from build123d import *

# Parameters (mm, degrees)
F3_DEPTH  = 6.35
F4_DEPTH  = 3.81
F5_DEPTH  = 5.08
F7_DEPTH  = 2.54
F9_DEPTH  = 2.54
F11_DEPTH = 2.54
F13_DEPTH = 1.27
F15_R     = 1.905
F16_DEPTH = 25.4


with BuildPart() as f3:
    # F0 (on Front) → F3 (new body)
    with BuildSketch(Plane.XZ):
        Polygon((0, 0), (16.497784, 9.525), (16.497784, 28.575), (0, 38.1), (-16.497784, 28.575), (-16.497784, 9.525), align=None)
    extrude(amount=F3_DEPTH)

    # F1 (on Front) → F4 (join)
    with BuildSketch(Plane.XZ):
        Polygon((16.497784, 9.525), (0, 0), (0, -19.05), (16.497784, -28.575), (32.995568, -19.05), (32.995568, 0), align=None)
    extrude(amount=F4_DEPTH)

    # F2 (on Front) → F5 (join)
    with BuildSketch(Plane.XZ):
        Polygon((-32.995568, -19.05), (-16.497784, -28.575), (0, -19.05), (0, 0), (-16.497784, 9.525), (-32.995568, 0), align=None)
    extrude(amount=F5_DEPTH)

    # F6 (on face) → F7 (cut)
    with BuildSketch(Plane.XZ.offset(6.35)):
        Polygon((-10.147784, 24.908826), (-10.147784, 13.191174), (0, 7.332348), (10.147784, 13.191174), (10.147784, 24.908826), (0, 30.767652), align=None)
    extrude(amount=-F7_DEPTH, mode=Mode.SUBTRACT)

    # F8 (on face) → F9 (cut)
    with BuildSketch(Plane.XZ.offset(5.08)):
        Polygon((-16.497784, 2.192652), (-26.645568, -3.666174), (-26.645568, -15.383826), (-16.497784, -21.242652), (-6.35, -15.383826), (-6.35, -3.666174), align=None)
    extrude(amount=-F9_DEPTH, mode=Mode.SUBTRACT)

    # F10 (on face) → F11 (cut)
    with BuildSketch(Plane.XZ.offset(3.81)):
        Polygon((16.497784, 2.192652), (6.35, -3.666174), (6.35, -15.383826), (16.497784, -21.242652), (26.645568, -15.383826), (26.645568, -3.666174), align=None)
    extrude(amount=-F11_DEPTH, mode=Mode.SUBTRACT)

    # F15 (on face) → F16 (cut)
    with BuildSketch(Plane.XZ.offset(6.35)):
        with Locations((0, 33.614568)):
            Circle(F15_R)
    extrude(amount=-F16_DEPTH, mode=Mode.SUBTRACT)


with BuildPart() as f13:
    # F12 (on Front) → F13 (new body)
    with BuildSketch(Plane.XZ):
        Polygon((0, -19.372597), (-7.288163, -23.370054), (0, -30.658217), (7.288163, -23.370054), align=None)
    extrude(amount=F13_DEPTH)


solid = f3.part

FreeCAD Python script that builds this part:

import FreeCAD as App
import Part
import Sketcher
from FreeCAD import Vector
Q = App.Units.Quantity


def add_polygon(sketch, points):
    """Adds a closed chain of lines whose ends are joined by coincident constraints."""
    first, n = sketch.GeometryCount, len(points)
    for a, b in zip(points, points[1:] + points[:1]):
        sketch.addGeometry(Part.LineSegment(App.Vector(*a, 0), App.Vector(*b, 0)), False)
    for i in range(n):
        sketch.addConstraint(Sketcher.Constraint("Coincident", first + i, 2, first + (i + 1) % n, 1))

doc = App.newDocument("Part")
params = doc.addObject("Spreadsheet::Sheet", "Params")
for row, (alias, value) in enumerate([
    ("sketch1_height", "0.75 in"),
    ("pad1_length", "0.25 in"),
    ("sketch2_height", "0.75 in"),
    ("pad2_length", "0.15 in"),
    ("sketch3_height", "0.75 in"),
    ("pad3_length", "0.2 in"),
    ("pocket1_length", "0.1 in"),
    ("pocket2_length", "0.1 in"),
    ("pocket3_length", "0.1 in"),
    ("sketch7_diameter", "0.15 in"),
    ("pocket4_length", "1 in"),
    ("pad4_length", "0.05 in"),
], start=1):
    params.set(f"A{row}", alias)
    params.set(f"B{row}", "=" + value)
    params.setAlias(f"B{row}", alias)

body = doc.addObject("PartDesign::Body", "Body")

# Sketch on XZ plane
sketch1 = body.newObject("Sketcher::SketchObject", "Sketch")
sketch1.AttachmentSupport = (doc.getObject("XZ_Plane"), [""])
sketch1.MapMode = "FlatFace"
add_polygon(sketch1, [(0, 0), (16, 10), (16, 29), (0, 38), (-16, 29), (-16, 10)])  # lines 0-5
sketch1.addConstraint(Sketcher.Constraint("Vertical", 1))
sketch1.addConstraint(Sketcher.Constraint("Vertical", 4))
sketch1.addConstraint(Sketcher.Constraint("Coincident", 5, 2, -1, 1))
sketch1.addConstraint(Sketcher.Constraint("Symmetric", 1, 2, 3, 2, -2))
sketch1.addConstraint(Sketcher.Constraint("PointOnObject", 2, 2, -2))
sketch1.addConstraint(Sketcher.Constraint("Parallel", 0, 3))
sketch1.addConstraint(Sketcher.Constraint("Parallel", 2, 5))
sketch1.addConstraint(Sketcher.Constraint("Angle", 0, Q("30 deg")))
sketch1.addConstraint(Sketcher.Constraint("DistanceY", 1, 1, 1, 2, Q("0.75 in")))
sketch1.addConstraint(Sketcher.Constraint("DistanceY", -1, 1, 2, 2, Q("1.5 in")))
sketch1.setExpression("Constraints[14]", "Params.sketch1_height")
pad1 = body.newObject("PartDesign::Pad", "Pad")
pad1.Profile = sketch1
pad1.setExpression("Length", "Params.pad1_length")

# Sketch on XZ plane
sketch2 = body.newObject("Sketcher::SketchObject", "Sketch001")
sketch2.AttachmentSupport = (doc.getObject("XZ_Plane"), [""])
sketch2.MapMode = "FlatFace"
add_polygon(sketch2, [(16, 10), (0, 0), (0, -19), (16, -29), (33, -19), (33, 0)])  # lines 0-5
sketch2.addConstraint(Sketcher.Constraint("Vertical", 1))
sketch2.addConstraint(Sketcher.Constraint("Vertical", 4))
sketch2.addConstraint(Sketcher.Constraint("Coincident", 0, 2, -1, 1))
sketch2.addConstraint(Sketcher.Constraint("PointOnObject", 4, 2, -1))
sketch2.addConstraint(Sketcher.Constraint("Parallel", 0, 3))
sketch2.addConstraint(Sketcher.Constraint("Parallel", 2, 5))
sketch2.addConstraint(Sketcher.Constraint("Horizontal", 1, 2, 3, 2))
sketch2.addConstraint(Sketcher.Constraint("Vertical", 2, 2, 5, 2))
sketch2.addConstraint(Sketcher.Constraint("Angle", 0, Q("-150 deg")))
sketch2.addConstraint(Sketcher.Constraint("DistanceY", 1, 2, 1, 1, Q("0.75 in")))
sketch2.addConstraint(Sketcher.Constraint("DistanceY", 2, 2, 5, 2, Q("1.5 in")))
sketch2.setExpression("Constraints[15]", "Params.sketch2_height")
pad2 = body.newObject("PartDesign::Pad", "Pad001")
pad2.Profile = sketch2
pad2.setExpression("Length", "Params.pad2_length")

# Sketch on XZ plane
sketch3 = body.newObject("Sketcher::SketchObject", "Sketch002")
sketch3.AttachmentSupport = (doc.getObject("XZ_Plane"), [""])
sketch3.MapMode = "FlatFace"
add_polygon(sketch3, [(-33, -19), (-16, -29), (0, -19), (0, 0), (-16, 10), (-33, 0)])  # lines 0-5
sketch3.addConstraint(Sketcher.Constraint("Vertical", 2))
sketch3.addConstraint(Sketcher.Constraint("Vertical", 5))
sketch3.addConstraint(Sketcher.Constraint("Coincident", 2, 2, -1, 1))
sketch3.addConstraint(Sketcher.Constraint("PointOnObject", 4, 2, -1))
sketch3.addConstraint(Sketcher.Constraint("Parallel", 0, 3))
sketch3.addConstraint(Sketcher.Constraint("Parallel", 1, 4))
sketch3.addConstraint(Sketcher.Constraint("Horizontal", 1, 2, 5, 2))
sketch3.addConstraint(Sketcher.Constraint("Vertical", 0, 2, 3, 2))
sketch3.addConstraint(Sketcher.Constraint("Angle", 0, Q("-30 deg")))
sketch3.addConstraint(Sketcher.Constraint("DistanceY", 2, 1, 2, 2, Q("0.75 in")))
sketch3.addConstraint(Sketcher.Constraint("DistanceY", 0, 2, 3, 2, Q("1.5 in")))
sketch3.setExpression("Constraints[15]", "Params.sketch3_height")
pad3 = body.newObject("PartDesign::Pad", "Pad002")
pad3.Profile = sketch3
pad3.setExpression("Length", "Params.pad3_length")

# Sketch on XZ plane
sketch4 = body.newObject("Sketcher::SketchObject", "Sketch003")
sketch4.AttachmentSupport = (doc.getObject("XZ_Plane"), [""])
sketch4.MapMode = "FlatFace"
sketch4.AttachmentOffset = App.Placement(Vector(0, 0, 0.25 * 25.4), App.Rotation())
add_polygon(sketch4, [(-10, 25), (-10, 13), (0, 7), (10, 13), (10, 25), (0, 31)])  # lines 0-5
sketch4.addConstraint(Sketcher.Constraint("Vertical", 0))
sketch4.addConstraint(Sketcher.Constraint("Vertical", 3))
sketch4.addConstraint(Sketcher.Constraint("Symmetric", 0, 2, 2, 2, -2))
sketch4.addConstraint(Sketcher.Constraint("PointOnObject", 1, 2, -2))
sketch4.addConstraint(Sketcher.Constraint("PointOnObject", 4, 2, -2))
sketch4.addConstraint(Sketcher.Constraint("Parallel", 1, 4))
sketch4.addConstraint(Sketcher.Constraint("Parallel", 2, 5))
sketch4.addConstraint(Sketcher.Constraint("Angle", 1, Q("-30.000001 deg")))
sketch4.addConstraint(Sketcher.Constraint("Distance", 1, 11.717652))
sketch4.addConstraint(Sketcher.Constraint("DistanceY", 0, 2, 0, 1, 11.717652))
sketch4.addConstraint(Sketcher.Constraint("DistanceY", -1, 1, 4, 2, 30.767652))
pocket1 = body.newObject("PartDesign::Pocket", "Pocket")
pocket1.Profile = sketch4
pocket1.setExpression("Length", "Params.pocket1_length")

# Sketch on XZ plane
sketch5 = body.newObject("Sketcher::SketchObject", "Sketch004")
sketch5.AttachmentSupport = (doc.getObject("XZ_Plane"), [""])
sketch5.MapMode = "FlatFace"
sketch5.AttachmentOffset = App.Placement(Vector(0, 0, 0.2 * 25.4), App.Rotation())
add_polygon(sketch5, [(-16, 2), (-27, -4), (-27, -15), (-16, -21), (-6, -15), (-6, -4)])  # lines 0-5
sketch5.addConstraint(Sketcher.Constraint("Vertical", 1))
sketch5.addConstraint(Sketcher.Constraint("Vertical", 4))
sketch5.addConstraint(Sketcher.Constraint("Parallel", 0, 3))
sketch5.addConstraint(Sketcher.Constraint("Parallel", 2, 5))
sketch5.addConstraint(Sketcher.Constraint("Horizontal", 1, 2, 3, 2))
sketch5.addConstraint(Sketcher.Constraint("Horizontal", 0, 2, 4, 2))
sketch5.addConstraint(Sketcher.Constraint("Vertical", 2, 2, 5, 2))
sketch5.addConstraint(Sketcher.Constraint("Angle", 0, Q("-149.999999 deg")))
sketch5.addConstraint(Sketcher.Constraint("DistanceX", 3, 2, -1, 1, Q("0.25 in")))
sketch5.addConstraint(Sketcher.Constraint("DistanceY", 1, 2, 1, 1, 11.717652))
sketch5.addConstraint(Sketcher.Constraint("Distance", 0, 11.717652))
sketch5.addConstraint(Sketcher.Constraint("DistanceY", 2, 2, -1, 1, 21.242652))
pocket2 = body.newObject("PartDesign::Pocket", "Pocket001")
pocket2.Profile = sketch5
pocket2.setExpression("Length", "Params.pocket2_length")

# Sketch on XZ plane
sketch6 = body.newObject("Sketcher::SketchObject", "Sketch005")
sketch6.AttachmentSupport = (doc.getObject("XZ_Plane"), [""])
sketch6.MapMode = "FlatFace"
sketch6.AttachmentOffset = App.Placement(Vector(0, 0, 0.15 * 25.4), App.Rotation())
add_polygon(sketch6, [(16, 2), (6, -4), (6, -15), (16, -21), (27, -15), (27, -4)])  # lines 0-5
sketch6.addConstraint(Sketcher.Constraint("Vertical", 1))
sketch6.addConstraint(Sketcher.Constraint("Vertical", 4))
sketch6.addConstraint(Sketcher.Constraint("Parallel", 0, 3))
sketch6.addConstraint(Sketcher.Constraint("Parallel", 2, 5))
sketch6.addConstraint(Sketcher.Constraint("Horizontal", 1, 2, 3, 2))
sketch6.addConstraint(Sketcher.Constraint("Horizontal", 0, 2, 4, 2))
sketch6.addConstraint(Sketcher.Constraint("Vertical", 2, 2, 5, 2))
sketch6.addConstraint(Sketcher.Constraint("Angle", 0, Q("-149.999999 deg")))
sketch6.addConstraint(Sketcher.Constraint("DistanceX", -1, 1, 0, 2, Q("0.25 in")))
sketch6.addConstraint(Sketcher.Constraint("DistanceY", 1, 2, 1, 1, 11.717652))
sketch6.addConstraint(Sketcher.Constraint("Distance", 0, 11.717652))
sketch6.addConstraint(Sketcher.Constraint("DistanceY", 2, 2, -1, 1, 21.242652))
pocket3 = body.newObject("PartDesign::Pocket", "Pocket002")
pocket3.Profile = sketch6
pocket3.setExpression("Length", "Params.pocket3_length")

# Sketch on XZ plane
sketch7 = body.newObject("Sketcher::SketchObject", "Sketch006")
sketch7.AttachmentSupport = (doc.getObject("XZ_Plane"), [""])
sketch7.MapMode = "FlatFace"
sketch7.AttachmentOffset = App.Placement(Vector(0, 0, 0.25 * 25.4), App.Rotation())
sketch7.addGeometry(Part.Circle(Vector(0, 33.6, 0), Vector(0, 0, 1), 1.9), False)
sketch7.addConstraint(Sketcher.Constraint("PointOnObject", 0, 3, -2))
sketch7.addConstraint(Sketcher.Constraint("Diameter", 0, Q("0.15 in")))
sketch7.addConstraint(Sketcher.Constraint("DistanceY", -1, 1, 0, 3, 33.614568))
sketch7.setExpression("Constraints[1]", "Params.sketch7_diameter")
pocket4 = body.newObject("PartDesign::Pocket", "Pocket003")
pocket4.Profile = sketch7
pocket4.setExpression("Length", "Params.pocket4_length")
body2 = doc.addObject("PartDesign::Body", "Body001")

# Sketch on XZ plane
sketch8 = body2.newObject("Sketcher::SketchObject", "Sketch007")
sketch8.AttachmentSupport = (doc.getObject("XZ_Plane001"), [""])
sketch8.MapMode = "FlatFace"
add_polygon(sketch8, [(0, -19), (-7, -23), (0, -31), (7, -23)])  # lines 0-3
sketch8.addConstraint(Sketcher.Constraint("Symmetric", 0, 2, 2, 2, -2))
sketch8.addConstraint(Sketcher.Constraint("PointOnObject", 1, 2, -2))
sketch8.addConstraint(Sketcher.Constraint("PointOnObject", 3, 2, -2))
sketch8.addConstraint(Sketcher.Constraint("Perpendicular", 1, 2))
sketch8.addConstraint(Sketcher.Constraint("Distance", 0, 8.312459))
sketch8.addConstraint(Sketcher.Constraint("Distance", 1, 10.307019))
sketch8.addConstraint(Sketcher.Constraint("DistanceY", 0, 2, -1, 1, 23.370054))
pad4 = body2.newObject("PartDesign::Pad", "Pad003")
pad4.Profile = sketch8
pad4.setExpression("Length", "Params.pad4_length")
body2.Visibility = False

doc.recompute()
